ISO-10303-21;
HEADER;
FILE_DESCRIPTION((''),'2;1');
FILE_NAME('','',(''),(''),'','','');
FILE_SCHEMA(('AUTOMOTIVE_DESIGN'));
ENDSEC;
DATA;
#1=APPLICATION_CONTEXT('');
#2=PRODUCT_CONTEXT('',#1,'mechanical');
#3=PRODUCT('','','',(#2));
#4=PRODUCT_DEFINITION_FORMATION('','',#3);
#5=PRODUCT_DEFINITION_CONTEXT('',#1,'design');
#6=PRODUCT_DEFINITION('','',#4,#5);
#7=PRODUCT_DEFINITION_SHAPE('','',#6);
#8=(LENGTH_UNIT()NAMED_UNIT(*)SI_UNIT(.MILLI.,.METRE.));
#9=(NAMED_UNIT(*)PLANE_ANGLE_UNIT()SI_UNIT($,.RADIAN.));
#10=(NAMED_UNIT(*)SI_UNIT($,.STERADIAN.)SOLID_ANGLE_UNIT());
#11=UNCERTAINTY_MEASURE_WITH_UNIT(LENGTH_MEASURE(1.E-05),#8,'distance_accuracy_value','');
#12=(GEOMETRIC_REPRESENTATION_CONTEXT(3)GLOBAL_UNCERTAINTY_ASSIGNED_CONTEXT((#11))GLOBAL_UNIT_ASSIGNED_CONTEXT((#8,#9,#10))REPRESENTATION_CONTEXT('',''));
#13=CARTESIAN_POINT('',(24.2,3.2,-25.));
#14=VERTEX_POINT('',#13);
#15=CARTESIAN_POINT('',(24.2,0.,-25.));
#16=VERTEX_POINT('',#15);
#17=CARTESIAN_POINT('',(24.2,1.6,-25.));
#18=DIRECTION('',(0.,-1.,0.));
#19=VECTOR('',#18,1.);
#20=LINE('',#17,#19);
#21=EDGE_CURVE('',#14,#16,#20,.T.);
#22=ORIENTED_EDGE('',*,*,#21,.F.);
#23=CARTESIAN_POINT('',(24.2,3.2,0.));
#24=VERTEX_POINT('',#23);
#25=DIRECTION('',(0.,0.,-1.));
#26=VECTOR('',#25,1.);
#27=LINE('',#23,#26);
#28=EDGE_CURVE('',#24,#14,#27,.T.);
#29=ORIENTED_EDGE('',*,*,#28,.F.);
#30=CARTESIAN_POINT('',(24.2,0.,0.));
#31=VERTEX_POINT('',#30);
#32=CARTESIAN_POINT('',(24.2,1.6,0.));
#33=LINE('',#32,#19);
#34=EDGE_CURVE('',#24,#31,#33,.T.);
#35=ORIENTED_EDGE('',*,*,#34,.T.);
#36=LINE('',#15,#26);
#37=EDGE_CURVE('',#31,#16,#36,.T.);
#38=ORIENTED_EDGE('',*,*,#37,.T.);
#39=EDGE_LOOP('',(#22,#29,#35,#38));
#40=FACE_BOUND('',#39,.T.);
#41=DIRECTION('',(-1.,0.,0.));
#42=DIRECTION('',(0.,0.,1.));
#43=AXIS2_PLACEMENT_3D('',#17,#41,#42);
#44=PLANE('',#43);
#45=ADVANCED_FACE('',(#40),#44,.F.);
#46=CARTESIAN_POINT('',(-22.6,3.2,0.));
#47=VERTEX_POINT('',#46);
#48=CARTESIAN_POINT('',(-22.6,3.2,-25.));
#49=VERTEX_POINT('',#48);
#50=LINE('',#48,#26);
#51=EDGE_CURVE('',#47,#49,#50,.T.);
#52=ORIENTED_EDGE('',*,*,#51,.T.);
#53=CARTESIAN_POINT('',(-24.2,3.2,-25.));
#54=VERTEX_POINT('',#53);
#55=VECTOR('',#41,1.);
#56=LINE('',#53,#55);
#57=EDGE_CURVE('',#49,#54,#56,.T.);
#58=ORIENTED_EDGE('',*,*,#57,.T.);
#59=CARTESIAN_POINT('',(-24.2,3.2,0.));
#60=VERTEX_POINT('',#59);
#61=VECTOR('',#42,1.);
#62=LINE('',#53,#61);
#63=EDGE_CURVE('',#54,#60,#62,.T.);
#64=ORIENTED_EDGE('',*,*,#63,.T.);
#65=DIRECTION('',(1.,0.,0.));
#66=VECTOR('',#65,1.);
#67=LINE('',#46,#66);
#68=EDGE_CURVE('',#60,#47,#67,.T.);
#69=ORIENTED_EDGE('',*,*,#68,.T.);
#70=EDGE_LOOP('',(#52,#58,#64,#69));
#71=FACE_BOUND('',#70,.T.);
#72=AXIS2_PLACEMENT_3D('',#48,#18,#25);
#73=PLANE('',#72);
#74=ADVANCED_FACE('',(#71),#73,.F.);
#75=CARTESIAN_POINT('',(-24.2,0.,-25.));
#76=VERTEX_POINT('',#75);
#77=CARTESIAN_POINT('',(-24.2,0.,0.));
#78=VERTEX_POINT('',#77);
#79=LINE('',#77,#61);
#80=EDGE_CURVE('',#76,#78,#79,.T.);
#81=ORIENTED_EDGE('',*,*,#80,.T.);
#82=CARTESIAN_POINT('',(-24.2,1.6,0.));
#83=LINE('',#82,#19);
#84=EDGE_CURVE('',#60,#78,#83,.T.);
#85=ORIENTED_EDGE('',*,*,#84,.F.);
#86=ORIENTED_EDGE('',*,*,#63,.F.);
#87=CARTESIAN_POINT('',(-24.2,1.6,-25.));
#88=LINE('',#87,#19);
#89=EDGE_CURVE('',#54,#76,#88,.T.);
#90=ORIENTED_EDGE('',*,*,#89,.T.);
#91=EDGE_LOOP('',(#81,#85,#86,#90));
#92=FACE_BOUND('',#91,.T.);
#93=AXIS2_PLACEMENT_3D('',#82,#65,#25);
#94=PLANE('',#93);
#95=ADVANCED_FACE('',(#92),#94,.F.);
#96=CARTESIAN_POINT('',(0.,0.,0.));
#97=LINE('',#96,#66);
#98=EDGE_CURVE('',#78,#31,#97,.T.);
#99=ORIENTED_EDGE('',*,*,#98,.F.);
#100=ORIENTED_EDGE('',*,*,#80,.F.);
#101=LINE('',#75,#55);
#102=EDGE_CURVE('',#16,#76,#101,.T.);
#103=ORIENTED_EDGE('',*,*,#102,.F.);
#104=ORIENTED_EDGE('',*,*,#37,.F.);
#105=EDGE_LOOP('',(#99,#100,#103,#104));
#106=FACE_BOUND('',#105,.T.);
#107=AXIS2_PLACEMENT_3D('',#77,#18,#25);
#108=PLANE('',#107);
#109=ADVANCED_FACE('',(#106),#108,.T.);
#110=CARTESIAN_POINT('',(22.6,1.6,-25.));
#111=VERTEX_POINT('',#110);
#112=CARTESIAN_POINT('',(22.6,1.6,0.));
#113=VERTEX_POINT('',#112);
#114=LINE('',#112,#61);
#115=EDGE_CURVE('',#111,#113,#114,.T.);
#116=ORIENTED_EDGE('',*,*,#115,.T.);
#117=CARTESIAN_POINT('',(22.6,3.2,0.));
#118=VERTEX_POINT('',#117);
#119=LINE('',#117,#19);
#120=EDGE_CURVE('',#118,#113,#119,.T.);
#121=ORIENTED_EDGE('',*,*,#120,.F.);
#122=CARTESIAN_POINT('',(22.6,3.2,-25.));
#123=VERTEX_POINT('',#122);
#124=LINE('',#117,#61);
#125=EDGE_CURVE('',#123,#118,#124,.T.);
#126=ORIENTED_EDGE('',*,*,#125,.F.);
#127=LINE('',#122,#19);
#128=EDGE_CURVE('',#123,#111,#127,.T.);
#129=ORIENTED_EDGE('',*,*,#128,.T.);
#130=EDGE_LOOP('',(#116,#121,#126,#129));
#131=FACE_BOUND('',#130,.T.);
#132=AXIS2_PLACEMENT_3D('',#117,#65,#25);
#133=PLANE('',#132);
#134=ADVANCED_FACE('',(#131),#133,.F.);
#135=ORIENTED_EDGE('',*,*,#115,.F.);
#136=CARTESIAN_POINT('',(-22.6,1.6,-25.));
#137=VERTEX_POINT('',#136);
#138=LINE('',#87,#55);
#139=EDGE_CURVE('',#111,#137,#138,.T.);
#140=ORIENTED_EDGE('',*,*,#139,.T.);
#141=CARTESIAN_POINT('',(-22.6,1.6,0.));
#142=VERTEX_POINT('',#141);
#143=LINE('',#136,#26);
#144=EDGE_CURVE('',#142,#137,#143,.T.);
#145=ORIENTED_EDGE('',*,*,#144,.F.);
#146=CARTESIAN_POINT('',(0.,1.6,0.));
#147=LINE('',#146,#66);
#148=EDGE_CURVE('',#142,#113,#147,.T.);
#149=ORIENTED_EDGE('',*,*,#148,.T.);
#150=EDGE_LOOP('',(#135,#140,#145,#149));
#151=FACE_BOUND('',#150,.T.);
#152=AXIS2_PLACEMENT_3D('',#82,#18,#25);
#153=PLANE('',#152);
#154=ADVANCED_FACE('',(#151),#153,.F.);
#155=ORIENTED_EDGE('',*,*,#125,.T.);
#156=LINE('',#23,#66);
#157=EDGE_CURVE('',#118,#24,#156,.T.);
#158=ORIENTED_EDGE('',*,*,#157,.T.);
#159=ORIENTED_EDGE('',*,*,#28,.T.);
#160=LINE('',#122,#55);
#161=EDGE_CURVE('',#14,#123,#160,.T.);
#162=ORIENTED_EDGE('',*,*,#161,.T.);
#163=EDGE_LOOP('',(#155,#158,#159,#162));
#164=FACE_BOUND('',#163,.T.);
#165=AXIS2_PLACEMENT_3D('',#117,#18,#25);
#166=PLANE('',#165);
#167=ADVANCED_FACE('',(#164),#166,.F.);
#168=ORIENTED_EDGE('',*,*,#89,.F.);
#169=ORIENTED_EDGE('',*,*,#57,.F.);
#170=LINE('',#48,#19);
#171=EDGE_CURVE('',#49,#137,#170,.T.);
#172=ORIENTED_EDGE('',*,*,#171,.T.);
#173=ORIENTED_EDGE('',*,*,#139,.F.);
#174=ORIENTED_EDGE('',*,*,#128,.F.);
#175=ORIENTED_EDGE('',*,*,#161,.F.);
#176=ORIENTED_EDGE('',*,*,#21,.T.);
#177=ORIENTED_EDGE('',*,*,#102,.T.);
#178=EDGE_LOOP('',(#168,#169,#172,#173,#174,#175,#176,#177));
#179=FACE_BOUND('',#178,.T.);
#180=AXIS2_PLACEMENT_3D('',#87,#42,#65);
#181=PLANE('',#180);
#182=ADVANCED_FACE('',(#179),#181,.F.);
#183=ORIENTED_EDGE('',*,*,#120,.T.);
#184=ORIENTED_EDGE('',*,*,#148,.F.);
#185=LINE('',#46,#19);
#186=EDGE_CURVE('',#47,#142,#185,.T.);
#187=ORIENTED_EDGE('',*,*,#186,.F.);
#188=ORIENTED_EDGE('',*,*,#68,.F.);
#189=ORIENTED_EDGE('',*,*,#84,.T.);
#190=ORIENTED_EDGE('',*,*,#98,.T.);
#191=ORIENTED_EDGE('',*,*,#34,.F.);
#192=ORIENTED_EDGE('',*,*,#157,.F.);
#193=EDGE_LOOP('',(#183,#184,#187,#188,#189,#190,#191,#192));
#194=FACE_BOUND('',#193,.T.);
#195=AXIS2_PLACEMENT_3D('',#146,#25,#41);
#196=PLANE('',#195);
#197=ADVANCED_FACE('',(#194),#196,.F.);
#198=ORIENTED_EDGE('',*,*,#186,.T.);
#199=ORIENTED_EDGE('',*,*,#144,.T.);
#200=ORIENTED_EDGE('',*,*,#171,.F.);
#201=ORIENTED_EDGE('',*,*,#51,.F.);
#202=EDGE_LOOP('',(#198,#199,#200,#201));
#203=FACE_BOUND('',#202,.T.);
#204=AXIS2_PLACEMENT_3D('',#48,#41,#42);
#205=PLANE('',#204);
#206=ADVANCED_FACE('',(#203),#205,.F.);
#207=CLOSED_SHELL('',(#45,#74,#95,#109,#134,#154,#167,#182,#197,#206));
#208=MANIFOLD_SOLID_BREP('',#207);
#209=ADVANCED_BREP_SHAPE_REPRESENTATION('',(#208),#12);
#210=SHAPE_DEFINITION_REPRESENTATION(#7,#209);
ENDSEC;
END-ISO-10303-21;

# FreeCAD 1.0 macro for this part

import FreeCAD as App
import Part
import Sketcher
from FreeCAD import Vector

doc = App.newDocument("Part")
body = doc.addObject("PartDesign::Body", "Body")

# Sketch on XZ plane
sketch1 = body.newObject("Sketcher::SketchObject", "Sketch")
sketch1.AttachmentSupport = (doc.getObject("XZ_Plane"), [""])
sketch1.MapMode = "FlatFace"
sketch1.addGeometry([
    Part.LineSegment(Vector(24, 0, 0), Vector(24, -25, 0)),
    Part.LineSegment(Vector(24, -25, 0), Vector(-24, -25, 0)),
    Part.LineSegment(Vector(-24, -25, 0), Vector(-24, 0, 0)),
    Part.LineSegment(Vector(-24, 0, 0), Vector(24, 0, 0)),
], False)
sketch1.addConstraint([
    Sketcher.Constraint("Coincident", 0, 2, 1, 1),
    Sketcher.Constraint("Coincident", 1, 2, 2, 1),
    Sketcher.Constraint("Coincident", 2, 2, 3, 1),
    Sketcher.Constraint("Coincident", 3, 2, 0, 1),
    Sketcher.Constraint("Vertical", 0),
    Sketcher.Constraint("Horizontal", 1),
    Sketcher.Constraint("Vertical", 2),
    Sketcher.Constraint("Horizontal", 3),
    Sketcher.Constraint("Symmetric", 2, 2, 3, 2, -1, 1),
    Sketcher.Constraint("DistanceY", 0, 2, 0, 1, 25.0),
    Sketcher.Constraint("DistanceX", 1, 2, 1, 1, 48.4),
])
pad1 = body.newObject("PartDesign::Pad", "Pad")
pad1.Profile = sketch1
pad1.Length = 1.6
pad1.Reversed = True

# Sketch on XZ plane
sketch2 = body.newObject("Sketcher::SketchObject", "Sketch001")
sketch2.AttachmentSupport = (doc.getObject("XZ_Plane"), [""])
sketch2.MapMode = "FlatFace"
sketch2.AttachmentOffset = App.Placement(Vector(0, 0, -1.6), App.Rotation())
sketch2.addGeometry([
    Part.LineSegment(Vector(-24.2, -25, 0), Vector(-24.2, 0, 0)),  # 0
    Part.LineSegment(Vector(-24.2, 0, 0), Vector(-22.6, 0, 0)),  # 1
    Part.LineSegment(Vector(-22.6, 0, 0), Vector(-22.6, -25, 0)),  # 2
    Part.LineSegment(Vector(-22.6, -25, 0), Vector(-24.2, -25, 0)),  # 3
    Part.LineSegment(Vector(22.6, -25, 0), Vector(22.6, 0, 0)),  # 4
    Part.LineSegment(Vector(22.6, 0, 0), Vector(24.2, 0, 0)),  # 5
    Part.LineSegment(Vector(24.2, 0, 0), Vector(24.2, -25, 0)),  # 6
    Part.LineSegment(Vector(24.2, -25, 0), Vector(22.6, -25, 0)),  # 7
], False)
sketch2.addConstraint([
    Sketcher.Constraint("Coincident", 0, 2, 1, 1),
    Sketcher.Constraint("Coincident", 1, 2, 2, 1),
    Sketcher.Constraint("Coincident", 2, 2, 3, 1),
    Sketcher.Constraint("Coincident", 3, 2, 0, 1),
    Sketcher.Constraint("Coincident", 4, 2, 5, 1),
    Sketcher.Constraint("Coincident", 5, 2, 6, 1),
    Sketcher.Constraint("Coincident", 6, 2, 7, 1),
    Sketcher.Constraint("Coincident", 7, 2, 4, 1),
    Sketcher.Constraint("Vertical", 0),
    Sketcher.Constraint("Horizontal", 1),
    Sketcher.Constraint("Vertical", 2),
    Sketcher.Constraint("Horizontal", 3),
    Sketcher.Constraint("Vertical", 4),
    Sketcher.Constraint("Horizontal", 5),
    Sketcher.Constraint("Vertical", 6),
    Sketcher.Constraint("Horizontal", 7),
    Sketcher.Constraint("Symmetric", 1, 2, 4, 2, -1, 1),
    Sketcher.Constraint("Symmetric", 0, 2, 5, 2, -2),
    Sketcher.Constraint("Horizontal", 3, 2, 6, 2),
    Sketcher.Constraint("DistanceY", 0, 1, 0, 2, 25.0),
    Sketcher.Constraint("DistanceX", 1, 1, 1, 2, 1.6),
    Sketcher.Constraint("DistanceX", 0, 2, -1, 1, 24.2),
])
pad2 = body.newObject("PartDesign::Pad", "Pad001")
pad2.Profile = sketch2
pad2.Length = 1.6
pad2.Reversed = True

doc.recompute()
